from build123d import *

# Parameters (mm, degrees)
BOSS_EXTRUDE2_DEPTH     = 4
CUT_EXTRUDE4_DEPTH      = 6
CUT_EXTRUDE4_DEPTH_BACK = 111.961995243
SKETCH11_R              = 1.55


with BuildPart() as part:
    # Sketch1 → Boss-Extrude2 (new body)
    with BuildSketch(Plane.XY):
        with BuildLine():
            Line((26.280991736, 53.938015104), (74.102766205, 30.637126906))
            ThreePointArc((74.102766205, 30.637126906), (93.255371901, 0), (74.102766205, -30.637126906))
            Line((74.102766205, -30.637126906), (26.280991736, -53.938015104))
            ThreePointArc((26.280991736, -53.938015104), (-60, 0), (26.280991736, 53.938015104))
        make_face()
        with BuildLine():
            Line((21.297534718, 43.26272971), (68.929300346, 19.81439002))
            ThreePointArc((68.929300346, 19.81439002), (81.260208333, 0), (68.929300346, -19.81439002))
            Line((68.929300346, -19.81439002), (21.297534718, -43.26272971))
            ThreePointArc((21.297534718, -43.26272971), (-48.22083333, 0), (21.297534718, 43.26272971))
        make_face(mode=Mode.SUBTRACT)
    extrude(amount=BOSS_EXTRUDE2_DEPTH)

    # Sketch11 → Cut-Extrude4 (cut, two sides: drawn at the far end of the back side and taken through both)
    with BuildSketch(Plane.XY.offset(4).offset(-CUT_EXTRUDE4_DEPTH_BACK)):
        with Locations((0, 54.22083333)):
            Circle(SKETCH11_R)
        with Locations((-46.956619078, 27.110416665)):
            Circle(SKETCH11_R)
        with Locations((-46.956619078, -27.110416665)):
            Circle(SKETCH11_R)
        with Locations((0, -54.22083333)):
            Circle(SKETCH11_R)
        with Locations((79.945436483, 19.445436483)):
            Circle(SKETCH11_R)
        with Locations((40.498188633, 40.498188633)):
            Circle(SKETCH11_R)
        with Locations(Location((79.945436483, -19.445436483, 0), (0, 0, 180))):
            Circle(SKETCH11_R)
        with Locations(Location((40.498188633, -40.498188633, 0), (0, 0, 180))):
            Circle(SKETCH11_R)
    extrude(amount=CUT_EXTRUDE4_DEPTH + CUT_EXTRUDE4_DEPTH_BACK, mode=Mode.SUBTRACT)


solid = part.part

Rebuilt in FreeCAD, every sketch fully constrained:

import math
import FreeCAD as App
import Part
import Sketcher

V = App.Vector

doc = App.newDocument("Part")
body = doc.addObject("PartDesign::Body", "Body")

# Sketch on XY plane
sketch1 = doc.addObject("Sketcher::SketchObject", "Sketch")
body.addObject(sketch1)
sketch1.AttachmentSupport = (doc.XY_Plane, [""])
sketch1.MapMode = "FlatFace"
sketch1.addGeometry(Part.LineSegment(V(74, 31, 0), V(26, 54, 0)), False)
sketch1.addGeometry(Part.ArcOfCircle(Part.Circle(V(0, 0, 0), V(0, 0, 1), 60), math.radians(64), math.radians(296)), False)
sketch1.addGeometry(Part.LineSegment(V(26, -54, 0), V(74, -31, 0)), False)
sketch1.addGeometry(Part.ArcOfCircle(Part.Circle(V(59, 0, 0), V(0, 0, 1), 34), math.radians(-64), math.radians(64)), False)
sketch1.addGeometry(Part.LineSegment(V(21, 43, 0), V(69, 20, 0)), False)
sketch1.addGeometry(Part.ArcOfCircle(Part.Circle(V(59, 0, 0), V(0, 0, 1), 22), math.radians(-64), math.radians(64)), False)
sketch1.addGeometry(Part.LineSegment(V(69, -20, 0), V(21, -43, 0)), False)
sketch1.addGeometry(Part.ArcOfCircle(Part.Circle(V(0, 0, 0), V(0, 0, 1), 48), math.radians(64), math.radians(296)), False)
sketch1.addConstraint(Sketcher.Constraint("Tangent", 0, 2, 1, 1))
sketch1.addConstraint(Sketcher.Constraint("Tangent", 1, 2, 2, 1))
sketch1.addConstraint(Sketcher.Constraint("Tangent", 2, 2, 3, 1))
sketch1.addConstraint(Sketcher.Constraint("Tangent", 3, 2, 0, 1))
sketch1.addConstraint(Sketcher.Constraint("Tangent", 4, 2, 5, 2))
sketch1.addConstraint(Sketcher.Constraint("Tangent", 5, 1, 6, 1))
sketch1.addConstraint(Sketcher.Constraint("Tangent", 6, 2, 7, 2))
sketch1.addConstraint(Sketcher.Constraint("Tangent", 7, 1, 4, 1))
sketch1.addConstraint(Sketcher.Constraint("Coincident", 1, 3, -1, 1))
sketch1.addConstraint(Sketcher.Constraint("Coincident", 7, 3, -1, 1))
sketch1.addConstraint(Sketcher.Constraint("Coincident", 5, 3, 3, 3))
sketch1.addConstraint(Sketcher.Constraint("PointOnObject", 3, 3, -1))
sketch1.addConstraint(Sketcher.Constraint("Radius", 1, 60.0))
sketch1.addConstraint(Sketcher.Constraint("Radius", 3, 34.080372))
sketch1.addConstraint(Sketcher.Constraint("Radius", 5, 22.085208))
sketch1.addConstraint(Sketcher.Constraint("DistanceX", -1, 1, 3, 3, 59.175))
sketch1.addConstraint(Sketcher.Constraint("Radius", 7, 48.220833))
pad1 = doc.addObject("PartDesign::Pad", "Pad")
body.addObject(pad1)
pad1.Profile = sketch1
pad1.Length = 4

# Sketch on XY plane
sketch2 = doc.addObject("Sketcher::SketchObject", "Sketch001")
body.addObject(sketch2)
sketch2.AttachmentSupport = (doc.XY_Plane, [""])
sketch2.MapMode = "FlatFace"
sketch2.AttachmentOffset = App.Placement(V(0, 0, 4), App.Rotation())
sketch2.addGeometry(Part.Circle(V(0, 54.2, 0), V(0, 0, 1), 1.6), False)
sketch2.addGeometry(Part.Circle(V(-47, 27.1, 0), V(0, 0, 1), 1.6), False)
sketch2.addGeometry(Part.Circle(V(-47, -27.1, 0), V(0, 0, 1), 1.6), False)
sketch2.addGeometry(Part.Circle(V(0, -54.2, 0), V(0, 0, 1), 1.6), False)
sketch2.addGeometry(Part.Circle(V(79.9, 19.4, 0), V(0, 0, 1), 1.6), False)
sketch2.addGeometry(Part.Circle(V(40.5, 40.5, 0), V(0, 0, 1), 1.6), False)
sketch2.addGeometry(Part.Circle(V(79.9, -19.4, 0), V(0, 0, 1), 1.6), False)
sketch2.addGeometry(Part.Circle(V(40.5, -40.5, 0), V(0, 0, 1), 1.6), False)
sketch2.addConstraint(Sketcher.Constraint("Equal", 0, 1))
sketch2.addConstraint(Sketcher.Constraint("Equal", 1, 2))
sketch2.addConstraint(Sketcher.Constraint("Equal", 2, 3))
sketch2.addConstraint(Sketcher.Constraint("Equal", 3, 4))
sketch2.addConstraint(Sketcher.Constraint("Equal", 4, 5))
sketch2.addConstraint(Sketcher.Constraint("Equal", 5, 6))
sketch2.addConstraint(Sketcher.Constraint("Equal", 6, 7))
sketch2.addConstraint(Sketcher.Constraint("Symmetric", 0, 3, 3, 3, -1, 1))
sketch2.addConstraint(Sketcher.Constraint("Symmetric", 1, 3, 2, 3, -1))
sketch2.addConstraint(Sketcher.Constraint("Symmetric", 4, 3, 6, 3, -1))
sketch2.addConstraint(Sketcher.Constraint("Symmetric", 5, 3, 7, 3, -1))
sketch2.addConstraint(Sketcher.Constraint("PointOnObject", 0, 3, -2))
sketch2.addConstraint(Sketcher.Constraint("Diameter", 0, 3.1))
sketch2.addConstraint(Sketcher.Constraint("DistanceX", 1, 3, -1, 1, 46.956619))
sketch2.addConstraint(Sketcher.Constraint("DistanceX", -1, 1, 5, 3, 40.498189))
sketch2.addConstraint(Sketcher.Constraint("DistanceY", -1, 1, 5, 3, 40.498189))
sketch2.addConstraint(Sketcher.Constraint("DistanceY", 2, 3, 0, 3, 81.33125))
sketch2.addConstraint(Sketcher.Constraint("DistanceY", 3, 3, 4, 3, 73.66627))
sketch2.addConstraint(Sketcher.Constraint("DistanceY", 1, 3, 5, 3, 13.387772))
sketch2.addConstraint(Sketcher.Constraint("DistanceX", -1, 1, 4, 3, 79.945436))
pocket1 = doc.addObject("PartDesign::Pocket", "Pocket")
body.addObject(pocket1)
pocket1.Profile = sketch2
pocket1.Type = "ThroughAll"
pocket1.Midplane = True

doc.recompute()
